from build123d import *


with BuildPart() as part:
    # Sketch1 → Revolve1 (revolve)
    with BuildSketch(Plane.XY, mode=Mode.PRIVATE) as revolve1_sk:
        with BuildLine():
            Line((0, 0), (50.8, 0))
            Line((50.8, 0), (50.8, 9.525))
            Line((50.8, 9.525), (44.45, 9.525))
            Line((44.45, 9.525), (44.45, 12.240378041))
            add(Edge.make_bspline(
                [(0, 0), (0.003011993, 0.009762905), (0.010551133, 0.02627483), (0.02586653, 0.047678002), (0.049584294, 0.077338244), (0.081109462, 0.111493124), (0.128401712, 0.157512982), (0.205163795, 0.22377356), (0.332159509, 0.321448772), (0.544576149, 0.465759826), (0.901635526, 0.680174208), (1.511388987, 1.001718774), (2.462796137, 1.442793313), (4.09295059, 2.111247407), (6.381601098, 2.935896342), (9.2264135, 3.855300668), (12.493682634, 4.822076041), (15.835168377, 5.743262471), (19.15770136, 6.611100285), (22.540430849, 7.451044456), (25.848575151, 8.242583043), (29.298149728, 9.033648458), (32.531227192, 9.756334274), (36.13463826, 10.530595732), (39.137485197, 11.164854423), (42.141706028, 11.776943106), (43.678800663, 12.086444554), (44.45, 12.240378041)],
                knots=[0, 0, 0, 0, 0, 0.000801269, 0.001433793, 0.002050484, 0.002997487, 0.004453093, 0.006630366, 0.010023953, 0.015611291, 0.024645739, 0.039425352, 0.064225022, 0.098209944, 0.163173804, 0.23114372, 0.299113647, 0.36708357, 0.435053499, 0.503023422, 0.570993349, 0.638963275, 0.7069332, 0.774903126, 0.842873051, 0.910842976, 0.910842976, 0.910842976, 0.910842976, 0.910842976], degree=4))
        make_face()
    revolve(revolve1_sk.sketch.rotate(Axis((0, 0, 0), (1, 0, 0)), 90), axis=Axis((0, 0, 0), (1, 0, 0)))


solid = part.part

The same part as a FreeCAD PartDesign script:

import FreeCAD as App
import Part
import Sketcher

V = App.Vector
Q = App.Units.Quantity

doc = App.newDocument("Part")
body = doc.addObject("PartDesign::Body", "Body")

# Sketch on XY plane
sketch1 = body.newObject("Sketcher::SketchObject", "Sketch")
sketch1.AttachmentSupport = (doc.getObject("XY_Plane"), [""])
sketch1.MapMode = "FlatFace"
sketch1.addGeometry([
    Part.LineSegment(V(0, 0, 0), V(50.8, 0, 0)),  # 0
    Part.LineSegment(V(50.8, 0, 0), V(50.8, 9.525, 0)),  # 1
    Part.LineSegment(V(50.8, 9.525, 0), V(44.45, 9.525, 0)),  # 2
    Part.LineSegment(V(44.45, 9.525, 0), V(44.45, 12.240378, 0)),  # 3
    Part.BSplineCurve([V(0, 0, 0), V(0.003012, 0.009763, 0), V(0.010551, 0.026275, 0), V(0.025867, 0.047678, 0), V(0.049584, 0.077338, 0), V(0.081109, 0.111493, 0), V(0.128402, 0.157513, 0), V(0.205164, 0.223774, 0), V(0.33216, 0.321449, 0), V(0.544576, 0.46576, 0), V(0.901636, 0.680174, 0), V(1.511389, 1.001719, 0), V(2.462796, 1.442793, 0), V(4.092951, 2.111247, 0), V(6.381601, 2.935896, 0), V(9.226413, 3.855301, 0), V(12.493683, 4.822076, 0), V(15.835168, 5.743262, 0), V(19.157701, 6.6111, 0), V(22.540431, 7.451044, 0), V(25.848575, 8.242583, 0), V(29.29815, 9.033648, 0), V(32.531227, 9.756334, 0), V(36.134638, 10.530596, 0), V(39.137485, 11.164854, 0), V(42.141706, 11.776943, 0), V(43.678801, 12.086445, 0), V(44.45, 12.240378, 0)], [5, 1, 1, 1, 1, 1, 1, 1, 1, 1, 1, 1, 1, 1, 1, 1, 1, 1, 1, 1, 1, 1, 1, 1, 5], [0, 0.000801269, 0.001433793, 0.002050484, 0.002997487, 0.004453093, 0.006630366, 0.010023953, 0.015611291, 0.024645739, 0.039425352, 0.064225022, 0.098209944, 0.163173804, 0.23114372, 0.299113647, 0.36708357, 0.435053499, 0.503023422, 0.570993349, 0.638963275, 0.7069332, 0.774903126, 0.842873051, 0.910842976], False, 4, [1, 1, 1, 1, 1, 1, 1, 1, 1, 1, 1, 1, 1, 1, 1, 1, 1, 1, 1, 1, 1, 1, 1, 1, 1, 1, 1, 1], False),  # 4
], False)
sketch1.addConstraint([
    Sketcher.Constraint("Block", 4),
    Sketcher.Constraint("Coincident", 0, 2, 1, 1),
    Sketcher.Constraint("Coincident", 1, 2, 2, 1),
    Sketcher.Constraint("Coincident", 2, 2, 3, 1),
    Sketcher.Constraint("Coincident", 3, 2, 4, 2),
    Sketcher.Constraint("Coincident", 4, 1, 0, 1),
    Sketcher.Constraint("Horizontal", 0),
    Sketcher.Constraint("Vertical", 1),
    Sketcher.Constraint("Horizontal", 2),
    Sketcher.Constraint("Vertical", 3),
    Sketcher.Constraint("DistanceX", 0, 1, 0, 2, Q("2 in")),
    Sketcher.Constraint("DistanceY", 1, 1, 1, 2, Q("0.375 in")),
])
revolution = body.newObject("PartDesign::Revolution", "Revolution")
revolution.Profile = sketch1
revolution.ReferenceAxis = (sketch1, ["H_Axis"])
revolution.Angle = 360

doc.recompute()
